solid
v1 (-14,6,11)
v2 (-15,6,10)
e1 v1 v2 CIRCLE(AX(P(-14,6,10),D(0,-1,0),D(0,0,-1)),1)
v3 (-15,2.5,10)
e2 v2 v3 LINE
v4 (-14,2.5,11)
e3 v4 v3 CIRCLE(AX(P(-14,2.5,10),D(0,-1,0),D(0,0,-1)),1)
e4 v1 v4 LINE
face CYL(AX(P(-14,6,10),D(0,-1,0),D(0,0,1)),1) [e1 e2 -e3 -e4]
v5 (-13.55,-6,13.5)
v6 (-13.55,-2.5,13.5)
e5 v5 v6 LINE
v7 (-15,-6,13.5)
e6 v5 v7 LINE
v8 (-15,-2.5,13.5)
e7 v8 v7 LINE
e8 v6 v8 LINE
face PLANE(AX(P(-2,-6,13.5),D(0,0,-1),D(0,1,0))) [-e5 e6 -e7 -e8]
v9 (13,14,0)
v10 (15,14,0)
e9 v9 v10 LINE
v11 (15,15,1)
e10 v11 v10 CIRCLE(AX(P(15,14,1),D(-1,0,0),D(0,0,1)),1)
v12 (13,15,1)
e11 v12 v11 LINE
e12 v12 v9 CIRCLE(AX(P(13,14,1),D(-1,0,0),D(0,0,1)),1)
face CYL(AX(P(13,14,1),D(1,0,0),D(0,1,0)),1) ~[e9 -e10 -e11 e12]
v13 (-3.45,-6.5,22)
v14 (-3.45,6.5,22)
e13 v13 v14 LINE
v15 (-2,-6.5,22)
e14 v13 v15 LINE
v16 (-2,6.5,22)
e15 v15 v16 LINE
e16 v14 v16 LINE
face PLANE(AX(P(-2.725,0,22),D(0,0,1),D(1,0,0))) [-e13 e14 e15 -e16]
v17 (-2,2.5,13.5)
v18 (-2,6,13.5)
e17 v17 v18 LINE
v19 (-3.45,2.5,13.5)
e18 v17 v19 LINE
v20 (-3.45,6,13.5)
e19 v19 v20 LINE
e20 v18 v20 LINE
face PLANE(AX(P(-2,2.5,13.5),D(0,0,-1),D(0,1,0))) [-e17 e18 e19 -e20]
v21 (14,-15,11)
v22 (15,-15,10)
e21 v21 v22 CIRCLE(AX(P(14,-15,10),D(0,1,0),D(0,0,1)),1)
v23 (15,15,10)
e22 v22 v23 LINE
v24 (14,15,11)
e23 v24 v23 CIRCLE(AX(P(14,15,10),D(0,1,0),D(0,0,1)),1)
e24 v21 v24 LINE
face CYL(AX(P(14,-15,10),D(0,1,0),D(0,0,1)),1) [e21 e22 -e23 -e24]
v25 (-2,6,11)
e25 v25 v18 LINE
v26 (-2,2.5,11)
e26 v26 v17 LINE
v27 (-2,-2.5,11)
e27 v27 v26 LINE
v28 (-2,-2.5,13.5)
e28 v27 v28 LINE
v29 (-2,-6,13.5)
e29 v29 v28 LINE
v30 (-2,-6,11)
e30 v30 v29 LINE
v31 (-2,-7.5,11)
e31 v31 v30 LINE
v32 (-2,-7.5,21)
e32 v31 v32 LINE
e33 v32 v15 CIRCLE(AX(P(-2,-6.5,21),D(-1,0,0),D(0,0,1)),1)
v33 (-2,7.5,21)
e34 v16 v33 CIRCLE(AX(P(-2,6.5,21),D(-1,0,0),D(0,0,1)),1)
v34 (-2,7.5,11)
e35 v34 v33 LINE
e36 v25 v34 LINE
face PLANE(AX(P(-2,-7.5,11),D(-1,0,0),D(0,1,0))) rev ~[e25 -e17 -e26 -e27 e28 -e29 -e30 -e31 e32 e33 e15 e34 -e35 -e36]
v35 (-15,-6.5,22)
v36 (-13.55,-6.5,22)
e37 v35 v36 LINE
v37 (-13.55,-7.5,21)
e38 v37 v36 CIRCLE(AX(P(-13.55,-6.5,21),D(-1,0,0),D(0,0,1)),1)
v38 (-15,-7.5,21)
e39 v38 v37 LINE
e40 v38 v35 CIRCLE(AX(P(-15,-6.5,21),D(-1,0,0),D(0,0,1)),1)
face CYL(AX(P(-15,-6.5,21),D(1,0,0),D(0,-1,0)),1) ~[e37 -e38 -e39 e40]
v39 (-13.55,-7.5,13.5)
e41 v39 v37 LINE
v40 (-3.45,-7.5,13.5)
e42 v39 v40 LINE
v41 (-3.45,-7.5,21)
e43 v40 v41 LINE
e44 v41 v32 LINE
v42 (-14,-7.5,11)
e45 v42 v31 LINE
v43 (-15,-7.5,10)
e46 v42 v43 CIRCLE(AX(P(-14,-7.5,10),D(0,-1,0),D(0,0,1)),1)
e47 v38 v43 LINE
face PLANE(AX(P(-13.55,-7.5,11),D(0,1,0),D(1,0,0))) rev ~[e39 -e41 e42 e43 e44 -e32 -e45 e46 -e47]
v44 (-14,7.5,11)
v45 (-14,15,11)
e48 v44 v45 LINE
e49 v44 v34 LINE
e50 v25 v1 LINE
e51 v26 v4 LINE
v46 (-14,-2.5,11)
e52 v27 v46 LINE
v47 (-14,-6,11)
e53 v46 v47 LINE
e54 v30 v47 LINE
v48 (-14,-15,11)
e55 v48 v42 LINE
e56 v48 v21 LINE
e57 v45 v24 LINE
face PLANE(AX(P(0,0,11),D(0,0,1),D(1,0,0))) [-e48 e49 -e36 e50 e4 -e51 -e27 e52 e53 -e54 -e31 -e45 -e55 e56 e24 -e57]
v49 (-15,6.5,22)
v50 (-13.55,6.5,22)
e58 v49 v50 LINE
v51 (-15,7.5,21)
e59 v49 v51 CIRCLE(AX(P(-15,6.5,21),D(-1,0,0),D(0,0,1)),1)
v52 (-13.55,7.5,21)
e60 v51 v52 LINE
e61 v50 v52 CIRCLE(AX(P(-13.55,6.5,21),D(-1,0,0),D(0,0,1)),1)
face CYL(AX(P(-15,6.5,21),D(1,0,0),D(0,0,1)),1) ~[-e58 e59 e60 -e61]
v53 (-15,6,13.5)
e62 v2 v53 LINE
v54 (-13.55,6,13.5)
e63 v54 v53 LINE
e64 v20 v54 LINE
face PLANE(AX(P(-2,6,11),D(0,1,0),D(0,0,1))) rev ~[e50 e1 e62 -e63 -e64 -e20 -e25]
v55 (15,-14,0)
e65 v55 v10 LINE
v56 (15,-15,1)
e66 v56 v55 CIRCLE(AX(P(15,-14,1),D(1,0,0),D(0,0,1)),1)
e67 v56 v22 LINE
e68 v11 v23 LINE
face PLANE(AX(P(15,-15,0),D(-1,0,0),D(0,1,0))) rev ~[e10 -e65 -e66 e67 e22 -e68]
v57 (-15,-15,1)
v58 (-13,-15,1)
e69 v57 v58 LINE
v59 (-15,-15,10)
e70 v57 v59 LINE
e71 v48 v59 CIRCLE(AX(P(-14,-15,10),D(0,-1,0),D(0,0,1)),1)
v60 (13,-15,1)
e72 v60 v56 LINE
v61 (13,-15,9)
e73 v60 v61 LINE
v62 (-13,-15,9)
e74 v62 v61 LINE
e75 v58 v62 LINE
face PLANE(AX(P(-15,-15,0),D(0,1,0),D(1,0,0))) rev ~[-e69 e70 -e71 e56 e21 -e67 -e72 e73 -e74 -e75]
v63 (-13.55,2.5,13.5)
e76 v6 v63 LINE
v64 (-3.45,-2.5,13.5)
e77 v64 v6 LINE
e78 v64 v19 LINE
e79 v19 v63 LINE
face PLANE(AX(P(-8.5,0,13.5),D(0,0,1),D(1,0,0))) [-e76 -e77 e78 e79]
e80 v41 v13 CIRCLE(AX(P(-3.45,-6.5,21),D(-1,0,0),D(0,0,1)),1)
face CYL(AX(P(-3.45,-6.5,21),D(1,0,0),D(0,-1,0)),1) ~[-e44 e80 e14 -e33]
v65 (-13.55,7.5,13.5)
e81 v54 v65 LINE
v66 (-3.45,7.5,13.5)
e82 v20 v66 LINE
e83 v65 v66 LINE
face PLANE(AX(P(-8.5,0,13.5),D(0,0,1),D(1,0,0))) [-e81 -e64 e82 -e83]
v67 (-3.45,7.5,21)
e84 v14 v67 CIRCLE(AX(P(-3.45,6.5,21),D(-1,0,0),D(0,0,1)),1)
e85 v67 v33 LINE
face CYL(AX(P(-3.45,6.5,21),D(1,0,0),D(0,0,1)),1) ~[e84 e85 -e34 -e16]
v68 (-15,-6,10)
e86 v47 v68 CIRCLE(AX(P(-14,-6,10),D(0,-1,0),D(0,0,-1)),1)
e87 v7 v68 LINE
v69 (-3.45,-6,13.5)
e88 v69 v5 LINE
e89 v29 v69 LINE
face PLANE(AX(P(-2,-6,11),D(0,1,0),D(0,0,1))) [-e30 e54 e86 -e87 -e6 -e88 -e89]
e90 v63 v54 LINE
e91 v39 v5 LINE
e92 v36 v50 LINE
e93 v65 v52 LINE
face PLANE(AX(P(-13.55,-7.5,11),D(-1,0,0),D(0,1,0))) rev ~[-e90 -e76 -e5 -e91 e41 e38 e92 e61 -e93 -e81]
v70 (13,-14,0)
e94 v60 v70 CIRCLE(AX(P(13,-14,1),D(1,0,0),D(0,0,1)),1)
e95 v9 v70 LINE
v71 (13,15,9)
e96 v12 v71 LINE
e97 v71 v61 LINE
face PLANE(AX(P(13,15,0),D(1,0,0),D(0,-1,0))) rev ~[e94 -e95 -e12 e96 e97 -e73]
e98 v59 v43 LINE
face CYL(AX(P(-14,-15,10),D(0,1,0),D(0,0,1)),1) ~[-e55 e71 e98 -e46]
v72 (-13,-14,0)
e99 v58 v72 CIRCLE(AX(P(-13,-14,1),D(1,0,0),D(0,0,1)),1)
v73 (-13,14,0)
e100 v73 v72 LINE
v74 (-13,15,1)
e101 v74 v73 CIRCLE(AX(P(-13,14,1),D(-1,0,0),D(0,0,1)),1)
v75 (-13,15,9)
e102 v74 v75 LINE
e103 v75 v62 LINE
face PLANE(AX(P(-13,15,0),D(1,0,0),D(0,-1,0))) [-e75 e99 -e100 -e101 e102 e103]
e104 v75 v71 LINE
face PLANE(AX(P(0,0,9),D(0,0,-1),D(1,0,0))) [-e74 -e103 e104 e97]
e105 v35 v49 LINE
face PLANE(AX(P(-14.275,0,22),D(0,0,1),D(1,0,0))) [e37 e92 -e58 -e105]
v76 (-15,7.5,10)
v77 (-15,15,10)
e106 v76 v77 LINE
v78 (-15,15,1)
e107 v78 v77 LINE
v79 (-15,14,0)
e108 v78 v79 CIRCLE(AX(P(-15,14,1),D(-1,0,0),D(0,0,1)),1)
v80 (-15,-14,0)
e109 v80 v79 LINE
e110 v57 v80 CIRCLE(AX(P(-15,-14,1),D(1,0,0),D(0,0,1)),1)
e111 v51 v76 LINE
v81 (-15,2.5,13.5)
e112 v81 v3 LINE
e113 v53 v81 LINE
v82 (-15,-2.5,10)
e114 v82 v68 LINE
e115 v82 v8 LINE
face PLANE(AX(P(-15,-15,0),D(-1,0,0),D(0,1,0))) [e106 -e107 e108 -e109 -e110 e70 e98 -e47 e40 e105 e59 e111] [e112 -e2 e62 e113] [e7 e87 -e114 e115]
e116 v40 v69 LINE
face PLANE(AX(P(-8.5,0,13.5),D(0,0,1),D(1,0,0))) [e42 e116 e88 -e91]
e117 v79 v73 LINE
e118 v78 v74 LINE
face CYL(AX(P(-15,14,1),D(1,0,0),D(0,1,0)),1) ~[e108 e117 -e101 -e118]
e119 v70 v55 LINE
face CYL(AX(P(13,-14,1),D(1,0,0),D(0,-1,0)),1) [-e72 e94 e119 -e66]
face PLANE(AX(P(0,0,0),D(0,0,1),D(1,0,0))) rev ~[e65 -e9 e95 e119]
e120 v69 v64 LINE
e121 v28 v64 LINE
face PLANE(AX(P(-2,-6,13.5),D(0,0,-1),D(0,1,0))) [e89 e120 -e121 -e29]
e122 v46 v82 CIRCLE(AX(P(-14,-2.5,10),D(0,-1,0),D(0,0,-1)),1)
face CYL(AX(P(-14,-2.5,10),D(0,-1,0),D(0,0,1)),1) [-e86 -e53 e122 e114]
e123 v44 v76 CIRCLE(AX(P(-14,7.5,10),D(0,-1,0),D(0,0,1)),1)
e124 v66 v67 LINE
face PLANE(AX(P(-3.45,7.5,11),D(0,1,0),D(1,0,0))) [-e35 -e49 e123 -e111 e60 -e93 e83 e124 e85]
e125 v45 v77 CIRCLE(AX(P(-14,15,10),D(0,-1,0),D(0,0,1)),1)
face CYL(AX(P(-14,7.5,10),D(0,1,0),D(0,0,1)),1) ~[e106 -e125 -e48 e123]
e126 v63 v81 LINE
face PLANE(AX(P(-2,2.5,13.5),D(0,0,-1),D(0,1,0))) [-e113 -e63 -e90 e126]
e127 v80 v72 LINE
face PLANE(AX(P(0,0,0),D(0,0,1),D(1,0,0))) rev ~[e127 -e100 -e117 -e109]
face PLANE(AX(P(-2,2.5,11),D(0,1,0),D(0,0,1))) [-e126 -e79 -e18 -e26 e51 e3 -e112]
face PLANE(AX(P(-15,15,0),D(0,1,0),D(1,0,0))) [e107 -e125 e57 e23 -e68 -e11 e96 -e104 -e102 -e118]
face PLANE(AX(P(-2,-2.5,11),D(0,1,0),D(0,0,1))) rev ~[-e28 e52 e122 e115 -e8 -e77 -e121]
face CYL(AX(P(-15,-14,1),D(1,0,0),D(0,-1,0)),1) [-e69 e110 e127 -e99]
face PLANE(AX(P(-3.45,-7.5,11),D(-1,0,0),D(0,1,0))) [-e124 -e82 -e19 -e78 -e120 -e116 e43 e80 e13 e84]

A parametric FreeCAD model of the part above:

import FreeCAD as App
import Part
import Sketcher
from FreeCAD import Vector
Q = App.Units.Quantity


def edges_at(feature, points):
    """Names of the edges that pass closest to the given points."""
    edges = feature.Shape.Edges
    near = lambda p: min(range(len(edges)), key=lambda i: edges[i].distToShape(Part.Vertex(*p))[0])
    return sorted({f"Edge{near(p) + 1}" for p in points})


def add_polygon(sketch, points):
    """Adds a closed chain of lines whose ends are joined by coincident constraints."""
    first, n = sketch.GeometryCount, len(points)
    for a, b in zip(points, points[1:] + points[:1]):
        sketch.addGeometry(Part.LineSegment(App.Vector(*a, 0), App.Vector(*b, 0)), False)
    for i in range(n):
        sketch.addConstraint(Sketcher.Constraint("Coincident", first + i, 2, first + (i + 1) % n, 1))

doc = App.newDocument("Part")
body = doc.addObject("PartDesign::Body", "Body")

sketch1 = body.newObject("Sketcher::SketchObject", "Sketch")
sketch1.AttachmentSupport = (doc.getObject("XY_Plane"), [""])
sketch1.MapMode = "FlatFace"
add_polygon(sketch1, [(-15, 15), (-15, -15), (15, -15), (15, 15)])
sketch1.addConstraint([
    Sketcher.Constraint("Vertical", 0),
    Sketcher.Constraint("Horizontal", 1),
    Sketcher.Constraint("Vertical", 2),
    Sketcher.Constraint("Horizontal", 3),
    Sketcher.Constraint("Symmetric", 0, 2, 2, 2, -1, 1),
    Sketcher.Constraint("Equal", 3, 0),
    Sketcher.Constraint("DistanceX", 1, 1, 1, 2, Q("30 mm")),
])
pad1 = body.newObject("PartDesign::Pad", "Pad")
pad1.Profile = sketch1
pad1.Length = 11

sketch2 = body.newObject("Sketcher::SketchObject", "Sketch001")
sketch2.AttachmentSupport = (doc.getObject("XY_Plane"), [""])
sketch2.MapMode = "FlatFace"
add_polygon(sketch2, [(-13, -15), (-13, 15), (13, 15), (13, -15)])
sketch2.addConstraint([
    Sketcher.Constraint("Vertical", 0),
    Sketcher.Constraint("Horizontal", 1),
    Sketcher.Constraint("Vertical", 2),
    Sketcher.Constraint("Horizontal", 3),
    Sketcher.Constraint("Symmetric", 0, 2, 2, 2, -1, 1),
    Sketcher.Constraint("DistanceX", 1, 1, 1, 2, Q("26 mm")),
    Sketcher.Constraint("DistanceY", 0, 1, 0, 2, Q("30 mm")),
])
pocket1 = body.newObject("PartDesign::Pocket", "Pocket")
pocket1.Profile = sketch2
pocket1.Length = 9
pocket1.Reversed = True

sketch3 = body.newObject("Sketcher::SketchObject", "Sketch002")
sketch3.AttachmentSupport = (doc.getObject("XY_Plane"), [""])
sketch3.MapMode = "FlatFace"
sketch3.AttachmentOffset = App.Placement(Vector(0, 0, 11), App.Rotation())
add_polygon(sketch3, [(-15, 7.5), (-15, -7.5), (-13.6, -7.5), (-13.6, 7.5)])
add_polygon(sketch3, [(-3.5, 7.5), (-3.5, -7.5), (-2, -7.5), (-2, 7.5)])
sketch3.addConstraint([
    Sketcher.Constraint("Vertical", 0),
    Sketcher.Constraint("Horizontal", 1),
    Sketcher.Constraint("Vertical", 2),
    Sketcher.Constraint("Horizontal", 3),
    Sketcher.Constraint("Vertical", 4),
    Sketcher.Constraint("Horizontal", 5),
    Sketcher.Constraint("Vertical", 6),
    Sketcher.Constraint("Horizontal", 7),
    Sketcher.Constraint("Horizontal", 1, 2, 4, 2),
    Sketcher.Constraint("Horizontal", 3, 2, 6, 2),
    Sketcher.Constraint("Equal", 3, 5),
    Sketcher.Constraint("DistanceY", 0, 2, 0, 1, Q("15 mm")),
    Sketcher.Constraint("DistanceX", 0, 2, -1, 1, Q("15 mm")),
    Sketcher.Constraint("DistanceX", 5, 2, -1, 1, Q("2 mm")),
    Sketcher.Constraint("DistanceX", 1, 1, 1, 2, Q("1.45 mm")),
    Sketcher.Constraint("DistanceY", 0, 2, -1, 1, Q("7.5 mm")),
])
pad2 = body.newObject("PartDesign::Pad", "Pad001")
pad2.Profile = sketch3
pad2.Length = 11

sketch4 = body.newObject("Sketcher::SketchObject", "Sketch003")
sketch4.AttachmentSupport = (doc.getObject("XY_Plane"), [""])
sketch4.MapMode = "FlatFace"
sketch4.AttachmentOffset = App.Placement(Vector(0, 0, 11), App.Rotation())
add_polygon(sketch4, [(-14, 8), (-14, -8), (-3, -8), (-3, 8)])
sketch4.addConstraint([
    Sketcher.Constraint("Vertical", 0),
    Sketcher.Constraint("Horizontal", 1),
    Sketcher.Constraint("Vertical", 2),
    Sketcher.Constraint("Horizontal", 3),
    Sketcher.Constraint("DistanceY", 0, 2, 0, 1, Q("15 mm")),
    Sketcher.Constraint("DistanceX", 1, 1, 1, 2, Q("10.1 mm")),
    Sketcher.Constraint("DistanceY", 0, 2, -1, 1, Q("7.5 mm")),
    Sketcher.Constraint("DistanceX", 0, 2, -1, 1, Q("13.55 mm")),
])
pad3 = body.newObject("PartDesign::Pad", "Pad002")
pad3.Profile = sketch4
pad3.Length = 2.5

sketch5 = body.newObject("Sketcher::SketchObject", "Sketch004")
sketch5.AttachmentSupport = (doc.getObject("YZ_Plane"), [""])
sketch5.MapMode = "FlatFace"
sketch5.AttachmentOffset = App.Placement(Vector(0, 0, -2), App.Rotation())
add_polygon(sketch5, [(-6, 13.5), (-6, 11), (-2.5, 11), (-2.5, 13.5)])
add_polygon(sketch5, [(2.5, 13.5), (2.5, 11), (6, 11), (6, 13.5)])
sketch5.addConstraint([
    Sketcher.Constraint("Vertical", 0),
    Sketcher.Constraint("Horizontal", 1),
    Sketcher.Constraint("Vertical", 2),
    Sketcher.Constraint("Horizontal", 3),
    Sketcher.Constraint("Vertical", 4),
    Sketcher.Constraint("Horizontal", 5),
    Sketcher.Constraint("Vertical", 6),
    Sketcher.Constraint("Horizontal", 7),
    Sketcher.Constraint("Symmetric", 1, 2, 4, 2, -2),
    Sketcher.Constraint("Symmetric", 3, 2, 6, 2, -2),
    Sketcher.Constraint("DistanceX", 1, 1, 1, 2, Q("3.5 mm")),
    Sketcher.Constraint("DistanceY", 0, 2, 0, 1, Q("2.5 mm")),
    Sketcher.Constraint("DistanceX", 0, 2, -1, 1, Q("6 mm")),
    Sketcher.Constraint("DistanceY", -1, 1, 0, 2, Q("11 mm")),
])
pocket2 = body.newObject("PartDesign::Pocket", "Pocket001")
pocket2.Profile = sketch5
pocket2.Type = "ThroughAll"
doc.recompute()

fillet = body.newObject("PartDesign::Fillet", "Fillet")
fillet.Base = (pocket2, edges_at(pocket2, [
    (-14.275, 7.5, 22),
    (-14.275, -7.5, 22),
    (-2.725, -7.5, 22),
    (-2.725, 7.5, 22),
    (-15, -11.25, 11),
    (-15, 11.25, 11),
    (-15, 4.25, 11),
    (-15, -4.25, 11),
    (15, 0, 11),
    (-14, -15, 0),
    (14, -15, 0),
    (-14, 15, 0),
    (14, 15, 0),
]))
fillet.Radius = 1

doc.recompute()
